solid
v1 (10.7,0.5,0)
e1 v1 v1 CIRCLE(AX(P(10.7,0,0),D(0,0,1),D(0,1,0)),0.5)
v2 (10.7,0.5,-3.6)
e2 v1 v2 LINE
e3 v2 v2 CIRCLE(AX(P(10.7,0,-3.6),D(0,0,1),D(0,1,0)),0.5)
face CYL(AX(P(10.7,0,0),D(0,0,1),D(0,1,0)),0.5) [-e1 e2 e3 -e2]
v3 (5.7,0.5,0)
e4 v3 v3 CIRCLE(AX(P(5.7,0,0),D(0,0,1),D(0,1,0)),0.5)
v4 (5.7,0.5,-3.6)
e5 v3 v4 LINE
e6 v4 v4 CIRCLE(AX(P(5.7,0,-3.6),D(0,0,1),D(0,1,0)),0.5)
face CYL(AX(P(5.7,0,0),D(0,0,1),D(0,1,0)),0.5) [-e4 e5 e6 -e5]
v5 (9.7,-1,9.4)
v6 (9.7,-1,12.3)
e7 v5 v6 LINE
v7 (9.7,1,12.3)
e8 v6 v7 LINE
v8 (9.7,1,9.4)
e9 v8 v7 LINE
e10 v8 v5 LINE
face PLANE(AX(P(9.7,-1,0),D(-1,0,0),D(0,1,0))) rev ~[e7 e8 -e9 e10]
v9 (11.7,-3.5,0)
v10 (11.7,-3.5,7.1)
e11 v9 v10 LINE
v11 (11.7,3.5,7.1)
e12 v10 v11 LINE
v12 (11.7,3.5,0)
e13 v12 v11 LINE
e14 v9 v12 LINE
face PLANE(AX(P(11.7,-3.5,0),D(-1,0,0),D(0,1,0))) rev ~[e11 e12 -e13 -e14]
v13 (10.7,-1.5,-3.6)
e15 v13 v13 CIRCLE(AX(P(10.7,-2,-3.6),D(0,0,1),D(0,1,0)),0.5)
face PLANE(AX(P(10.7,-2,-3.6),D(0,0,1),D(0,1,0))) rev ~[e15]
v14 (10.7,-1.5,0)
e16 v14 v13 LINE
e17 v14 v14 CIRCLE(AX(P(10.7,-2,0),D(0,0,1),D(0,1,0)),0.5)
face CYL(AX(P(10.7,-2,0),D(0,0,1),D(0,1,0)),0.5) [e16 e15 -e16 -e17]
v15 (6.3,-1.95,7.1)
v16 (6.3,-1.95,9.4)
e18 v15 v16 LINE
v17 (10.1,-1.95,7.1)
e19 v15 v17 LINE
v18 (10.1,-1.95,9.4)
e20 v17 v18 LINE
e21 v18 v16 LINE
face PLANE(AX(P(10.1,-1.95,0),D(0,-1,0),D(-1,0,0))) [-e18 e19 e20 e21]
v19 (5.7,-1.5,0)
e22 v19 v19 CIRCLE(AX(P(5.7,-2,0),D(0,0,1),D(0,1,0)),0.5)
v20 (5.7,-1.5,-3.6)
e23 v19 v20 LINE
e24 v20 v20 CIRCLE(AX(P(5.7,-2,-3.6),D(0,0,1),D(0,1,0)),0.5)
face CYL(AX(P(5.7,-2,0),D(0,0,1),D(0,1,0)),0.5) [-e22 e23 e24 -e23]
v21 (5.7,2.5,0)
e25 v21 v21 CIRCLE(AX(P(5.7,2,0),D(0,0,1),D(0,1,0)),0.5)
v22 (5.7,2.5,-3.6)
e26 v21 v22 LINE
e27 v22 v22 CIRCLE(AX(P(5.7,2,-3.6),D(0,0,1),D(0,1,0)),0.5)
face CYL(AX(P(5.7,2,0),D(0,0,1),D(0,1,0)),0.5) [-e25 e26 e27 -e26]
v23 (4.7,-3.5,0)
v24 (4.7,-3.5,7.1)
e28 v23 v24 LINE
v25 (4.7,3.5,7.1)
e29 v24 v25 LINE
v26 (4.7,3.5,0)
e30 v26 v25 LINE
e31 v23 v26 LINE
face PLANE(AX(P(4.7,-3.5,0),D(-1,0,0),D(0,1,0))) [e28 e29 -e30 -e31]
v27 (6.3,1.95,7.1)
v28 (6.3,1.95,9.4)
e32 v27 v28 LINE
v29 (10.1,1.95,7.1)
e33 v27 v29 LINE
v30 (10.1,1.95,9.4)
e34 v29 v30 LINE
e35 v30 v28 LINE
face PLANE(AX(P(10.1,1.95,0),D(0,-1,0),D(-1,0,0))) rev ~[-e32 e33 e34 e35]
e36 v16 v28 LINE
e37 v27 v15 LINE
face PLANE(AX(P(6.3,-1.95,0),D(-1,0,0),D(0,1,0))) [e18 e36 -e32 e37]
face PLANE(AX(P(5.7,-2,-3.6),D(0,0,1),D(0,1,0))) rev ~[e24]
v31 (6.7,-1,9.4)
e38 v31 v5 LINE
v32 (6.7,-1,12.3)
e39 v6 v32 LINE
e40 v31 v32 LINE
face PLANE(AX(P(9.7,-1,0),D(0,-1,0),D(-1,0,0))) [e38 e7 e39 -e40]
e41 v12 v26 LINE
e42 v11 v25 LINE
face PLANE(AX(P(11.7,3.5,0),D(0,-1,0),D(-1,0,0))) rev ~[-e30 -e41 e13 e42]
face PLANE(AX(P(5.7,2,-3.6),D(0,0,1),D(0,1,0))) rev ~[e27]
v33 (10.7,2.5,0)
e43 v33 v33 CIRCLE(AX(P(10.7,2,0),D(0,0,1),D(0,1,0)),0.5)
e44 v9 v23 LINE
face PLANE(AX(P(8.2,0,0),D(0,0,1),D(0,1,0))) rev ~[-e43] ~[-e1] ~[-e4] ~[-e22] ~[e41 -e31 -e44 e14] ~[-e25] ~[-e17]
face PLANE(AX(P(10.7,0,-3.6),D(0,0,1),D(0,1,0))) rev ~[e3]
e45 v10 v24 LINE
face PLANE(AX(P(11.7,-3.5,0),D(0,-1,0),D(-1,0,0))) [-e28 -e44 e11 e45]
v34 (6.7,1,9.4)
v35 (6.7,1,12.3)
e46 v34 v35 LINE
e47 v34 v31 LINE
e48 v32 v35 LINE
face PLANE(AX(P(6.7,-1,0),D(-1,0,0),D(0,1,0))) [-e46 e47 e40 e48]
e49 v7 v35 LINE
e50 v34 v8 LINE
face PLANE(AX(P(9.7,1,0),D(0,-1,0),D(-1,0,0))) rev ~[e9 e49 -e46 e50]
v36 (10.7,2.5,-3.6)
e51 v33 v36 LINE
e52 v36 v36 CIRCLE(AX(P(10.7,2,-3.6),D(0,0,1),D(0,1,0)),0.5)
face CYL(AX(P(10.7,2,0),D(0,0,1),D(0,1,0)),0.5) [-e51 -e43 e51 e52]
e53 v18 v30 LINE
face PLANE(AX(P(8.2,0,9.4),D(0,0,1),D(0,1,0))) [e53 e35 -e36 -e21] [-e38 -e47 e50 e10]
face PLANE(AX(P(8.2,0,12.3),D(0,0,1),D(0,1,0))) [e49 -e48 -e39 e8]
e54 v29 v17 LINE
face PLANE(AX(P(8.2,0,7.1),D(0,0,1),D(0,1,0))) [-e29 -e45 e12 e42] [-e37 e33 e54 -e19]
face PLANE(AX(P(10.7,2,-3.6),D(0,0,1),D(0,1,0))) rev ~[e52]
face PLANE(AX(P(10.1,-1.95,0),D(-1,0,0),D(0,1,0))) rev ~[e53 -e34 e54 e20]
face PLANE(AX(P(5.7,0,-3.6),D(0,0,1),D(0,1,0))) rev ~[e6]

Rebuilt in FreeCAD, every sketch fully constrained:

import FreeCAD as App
import Part
import Sketcher
Q = App.Units.Quantity


def add_polygon(sketch, points):
    """Adds a closed chain of lines whose ends are joined by coincident constraints."""
    first, n = sketch.GeometryCount, len(points)
    for a, b in zip(points, points[1:] + points[:1]):
        sketch.addGeometry(Part.LineSegment(App.Vector(*a, 0), App.Vector(*b, 0)), False)
    for i in range(n):
        sketch.addConstraint(Sketcher.Constraint("Coincident", first + i, 2, first + (i + 1) % n, 1))

doc = App.newDocument("Part")
body = doc.addObject("PartDesign::Body", "Body")

# Sketch on XY plane
sketch1 = body.newObject("Sketcher::SketchObject", "Sketch")
sketch1.AttachmentSupport = (doc.getObject("XY_Plane"), [""])
sketch1.MapMode = "FlatFace"
add_polygon(sketch1, [(-4, 4), (-4, -4), (4, -4), (4, 4)])  # lines 0-3
sketch1.addConstraint([
    Sketcher.Constraint("Vertical", 0),
    Sketcher.Constraint("Horizontal", 1),
    Sketcher.Constraint("Vertical", 2),
    Sketcher.Constraint("Horizontal", 3),
    Sketcher.Constraint("Symmetric", 0, 2, 2, 2, -1, 1),
    Sketcher.Constraint("Equal", 3, 0),
    Sketcher.Constraint("DistanceX", 1, 1, 1, 2, Q("7 mm")),
])
pad1 = body.newObject("PartDesign::Pad", "Pad")
pad1.Profile = sketch1
pad1.Length = 7.1

# Sketch on XY plane
sketch2 = body.newObject("Sketcher::SketchObject", "Sketch001")
sketch2.AttachmentSupport = (doc.getObject("XY_Plane"), [""])
sketch2.MapMode = "FlatFace"
sketch2.addGeometry([
    Part.Circle(App.Vector(0, 2.5, 0), App.Vector(0, 0, 1), 0.5),  # 0
    Part.Circle(App.Vector(0, -2.5, 0), App.Vector(0, 0, 1), 0.5),  # 1
    Part.Circle(App.Vector(2, 2.5, 0), App.Vector(0, 0, 1), 0.5),  # 2
    Part.Circle(App.Vector(-2, 2.5, 0), App.Vector(0, 0, 1), 0.5),  # 3
    Part.Circle(App.Vector(-2, -2.5, 0), App.Vector(0, 0, 1), 0.5),  # 4
    Part.Circle(App.Vector(2, -2.5, 0), App.Vector(0, 0, 1), 0.5),  # 5
], False)
sketch2.addConstraint([
    Sketcher.Constraint("Equal", 0, 1),
    Sketcher.Constraint("Equal", 1, 2),
    Sketcher.Constraint("Equal", 2, 3),
    Sketcher.Constraint("Equal", 3, 4),
    Sketcher.Constraint("Equal", 4, 5),
    Sketcher.Constraint("Symmetric", 0, 3, 1, 3, -1, 1),
    Sketcher.Constraint("Symmetric", 2, 3, 4, 3, -1, 1),
    Sketcher.Constraint("Symmetric", 3, 3, 5, 3, -1, 1),
    Sketcher.Constraint("Symmetric", 2, 3, 3, 3, -2),
    Sketcher.Constraint("PointOnObject", 0, 3, -2),
    Sketcher.Constraint("Horizontal", 0, 3, 2, 3),
    Sketcher.Constraint("Diameter", 0, Q("1 mm")),
    Sketcher.Constraint("DistanceX", -1, 1, 2, 3, Q("2 mm")),
    Sketcher.Constraint("DistanceY", 1, 3, 0, 3, Q("5 mm")),
])
pad2 = body.newObject("PartDesign::Pad", "Pad001")
pad2.Profile = sketch2
pad2.Length = 3.6
pad2.Reversed = True

# Sketch on XY plane
sketch3 = body.newObject("Sketcher::SketchObject", "Sketch002")
sketch3.AttachmentSupport = (doc.getObject("XY_Plane"), [""])
sketch3.MapMode = "FlatFace"
add_polygon(sketch3, [(-1.9, 1.9), (-1.9, -1.9), (1.9, -1.9), (1.9, 1.9)])  # lines 0-3
sketch3.addConstraint([
    Sketcher.Constraint("Vertical", 0),
    Sketcher.Constraint("Horizontal", 1),
    Sketcher.Constraint("Vertical", 2),
    Sketcher.Constraint("Horizontal", 3),
    Sketcher.Constraint("Symmetric", 0, 2, 2, 2, -1, 1),
    Sketcher.Constraint("DistanceX", 1, 1, 1, 2, Q("3.9 mm")),
    Sketcher.Constraint("DistanceY", 0, 2, 0, 1, Q("3.8 mm")),
])
pad3 = body.newObject("PartDesign::Pad", "Pad002")
pad3.Profile = sketch3
pad3.Length = 9.4

# Sketch on XY plane
sketch4 = body.newObject("Sketcher::SketchObject", "Sketch003")
sketch4.AttachmentSupport = (doc.getObject("XY_Plane"), [""])
sketch4.MapMode = "FlatFace"
add_polygon(sketch4, [(-1, 1.5), (-1, -1.5), (1, -1.5), (1, 1.5)])  # lines 0-3
sketch4.addConstraint([
    Sketcher.Constraint("Vertical", 0),
    Sketcher.Constraint("Horizontal", 1),
    Sketcher.Constraint("Vertical", 2),
    Sketcher.Constraint("Horizontal", 3),
    Sketcher.Constraint("Symmetric", 0, 2, 2, 2, -1, 1),
    Sketcher.Constraint("DistanceX", 1, 1, 1, 2, Q("2 mm")),
    Sketcher.Constraint("DistanceY", 0, 2, 0, 1, Q("3 mm")),
])
pad4 = body.newObject("PartDesign::Pad", "Pad003")
pad4.Profile = sketch4
pad4.Length = 12.3
body2 = doc.addObject("PartDesign::Body", "Body001")
doc.recompute()

body.Placement = App.Placement(App.Vector(-8.2, 0, 0), App.Rotation(App.Vector(0, 0, 1), 90))
boolean = body2.newObject("PartDesign::Boolean", "Boolean")
boolean.Type = "Fuse"
boolean.addObjects([body])
body3 = doc.addObject("PartDesign::Body", "Body002")
doc.recompute()

body2.Placement = App.Placement(App.Vector(3.2, 0, 0), App.Rotation(App.Vector(0, 0, 1), 0))
boolean2 = body3.newObject("PartDesign::Boolean", "Boolean001")
boolean2.Type = "Fuse"
boolean2.addObjects([body2])
body4 = doc.addObject("PartDesign::Body", "Body003")
doc.recompute()

body3.Placement = App.Placement(App.Vector(13.2, 0, 0), App.Rotation(App.Vector(0, 0, 1), 0))
boolean3 = body4.newObject("PartDesign::Boolean", "Boolean002")
boolean3.Type = "Fuse"
boolean3.addObjects([body3])

doc.recompute()
